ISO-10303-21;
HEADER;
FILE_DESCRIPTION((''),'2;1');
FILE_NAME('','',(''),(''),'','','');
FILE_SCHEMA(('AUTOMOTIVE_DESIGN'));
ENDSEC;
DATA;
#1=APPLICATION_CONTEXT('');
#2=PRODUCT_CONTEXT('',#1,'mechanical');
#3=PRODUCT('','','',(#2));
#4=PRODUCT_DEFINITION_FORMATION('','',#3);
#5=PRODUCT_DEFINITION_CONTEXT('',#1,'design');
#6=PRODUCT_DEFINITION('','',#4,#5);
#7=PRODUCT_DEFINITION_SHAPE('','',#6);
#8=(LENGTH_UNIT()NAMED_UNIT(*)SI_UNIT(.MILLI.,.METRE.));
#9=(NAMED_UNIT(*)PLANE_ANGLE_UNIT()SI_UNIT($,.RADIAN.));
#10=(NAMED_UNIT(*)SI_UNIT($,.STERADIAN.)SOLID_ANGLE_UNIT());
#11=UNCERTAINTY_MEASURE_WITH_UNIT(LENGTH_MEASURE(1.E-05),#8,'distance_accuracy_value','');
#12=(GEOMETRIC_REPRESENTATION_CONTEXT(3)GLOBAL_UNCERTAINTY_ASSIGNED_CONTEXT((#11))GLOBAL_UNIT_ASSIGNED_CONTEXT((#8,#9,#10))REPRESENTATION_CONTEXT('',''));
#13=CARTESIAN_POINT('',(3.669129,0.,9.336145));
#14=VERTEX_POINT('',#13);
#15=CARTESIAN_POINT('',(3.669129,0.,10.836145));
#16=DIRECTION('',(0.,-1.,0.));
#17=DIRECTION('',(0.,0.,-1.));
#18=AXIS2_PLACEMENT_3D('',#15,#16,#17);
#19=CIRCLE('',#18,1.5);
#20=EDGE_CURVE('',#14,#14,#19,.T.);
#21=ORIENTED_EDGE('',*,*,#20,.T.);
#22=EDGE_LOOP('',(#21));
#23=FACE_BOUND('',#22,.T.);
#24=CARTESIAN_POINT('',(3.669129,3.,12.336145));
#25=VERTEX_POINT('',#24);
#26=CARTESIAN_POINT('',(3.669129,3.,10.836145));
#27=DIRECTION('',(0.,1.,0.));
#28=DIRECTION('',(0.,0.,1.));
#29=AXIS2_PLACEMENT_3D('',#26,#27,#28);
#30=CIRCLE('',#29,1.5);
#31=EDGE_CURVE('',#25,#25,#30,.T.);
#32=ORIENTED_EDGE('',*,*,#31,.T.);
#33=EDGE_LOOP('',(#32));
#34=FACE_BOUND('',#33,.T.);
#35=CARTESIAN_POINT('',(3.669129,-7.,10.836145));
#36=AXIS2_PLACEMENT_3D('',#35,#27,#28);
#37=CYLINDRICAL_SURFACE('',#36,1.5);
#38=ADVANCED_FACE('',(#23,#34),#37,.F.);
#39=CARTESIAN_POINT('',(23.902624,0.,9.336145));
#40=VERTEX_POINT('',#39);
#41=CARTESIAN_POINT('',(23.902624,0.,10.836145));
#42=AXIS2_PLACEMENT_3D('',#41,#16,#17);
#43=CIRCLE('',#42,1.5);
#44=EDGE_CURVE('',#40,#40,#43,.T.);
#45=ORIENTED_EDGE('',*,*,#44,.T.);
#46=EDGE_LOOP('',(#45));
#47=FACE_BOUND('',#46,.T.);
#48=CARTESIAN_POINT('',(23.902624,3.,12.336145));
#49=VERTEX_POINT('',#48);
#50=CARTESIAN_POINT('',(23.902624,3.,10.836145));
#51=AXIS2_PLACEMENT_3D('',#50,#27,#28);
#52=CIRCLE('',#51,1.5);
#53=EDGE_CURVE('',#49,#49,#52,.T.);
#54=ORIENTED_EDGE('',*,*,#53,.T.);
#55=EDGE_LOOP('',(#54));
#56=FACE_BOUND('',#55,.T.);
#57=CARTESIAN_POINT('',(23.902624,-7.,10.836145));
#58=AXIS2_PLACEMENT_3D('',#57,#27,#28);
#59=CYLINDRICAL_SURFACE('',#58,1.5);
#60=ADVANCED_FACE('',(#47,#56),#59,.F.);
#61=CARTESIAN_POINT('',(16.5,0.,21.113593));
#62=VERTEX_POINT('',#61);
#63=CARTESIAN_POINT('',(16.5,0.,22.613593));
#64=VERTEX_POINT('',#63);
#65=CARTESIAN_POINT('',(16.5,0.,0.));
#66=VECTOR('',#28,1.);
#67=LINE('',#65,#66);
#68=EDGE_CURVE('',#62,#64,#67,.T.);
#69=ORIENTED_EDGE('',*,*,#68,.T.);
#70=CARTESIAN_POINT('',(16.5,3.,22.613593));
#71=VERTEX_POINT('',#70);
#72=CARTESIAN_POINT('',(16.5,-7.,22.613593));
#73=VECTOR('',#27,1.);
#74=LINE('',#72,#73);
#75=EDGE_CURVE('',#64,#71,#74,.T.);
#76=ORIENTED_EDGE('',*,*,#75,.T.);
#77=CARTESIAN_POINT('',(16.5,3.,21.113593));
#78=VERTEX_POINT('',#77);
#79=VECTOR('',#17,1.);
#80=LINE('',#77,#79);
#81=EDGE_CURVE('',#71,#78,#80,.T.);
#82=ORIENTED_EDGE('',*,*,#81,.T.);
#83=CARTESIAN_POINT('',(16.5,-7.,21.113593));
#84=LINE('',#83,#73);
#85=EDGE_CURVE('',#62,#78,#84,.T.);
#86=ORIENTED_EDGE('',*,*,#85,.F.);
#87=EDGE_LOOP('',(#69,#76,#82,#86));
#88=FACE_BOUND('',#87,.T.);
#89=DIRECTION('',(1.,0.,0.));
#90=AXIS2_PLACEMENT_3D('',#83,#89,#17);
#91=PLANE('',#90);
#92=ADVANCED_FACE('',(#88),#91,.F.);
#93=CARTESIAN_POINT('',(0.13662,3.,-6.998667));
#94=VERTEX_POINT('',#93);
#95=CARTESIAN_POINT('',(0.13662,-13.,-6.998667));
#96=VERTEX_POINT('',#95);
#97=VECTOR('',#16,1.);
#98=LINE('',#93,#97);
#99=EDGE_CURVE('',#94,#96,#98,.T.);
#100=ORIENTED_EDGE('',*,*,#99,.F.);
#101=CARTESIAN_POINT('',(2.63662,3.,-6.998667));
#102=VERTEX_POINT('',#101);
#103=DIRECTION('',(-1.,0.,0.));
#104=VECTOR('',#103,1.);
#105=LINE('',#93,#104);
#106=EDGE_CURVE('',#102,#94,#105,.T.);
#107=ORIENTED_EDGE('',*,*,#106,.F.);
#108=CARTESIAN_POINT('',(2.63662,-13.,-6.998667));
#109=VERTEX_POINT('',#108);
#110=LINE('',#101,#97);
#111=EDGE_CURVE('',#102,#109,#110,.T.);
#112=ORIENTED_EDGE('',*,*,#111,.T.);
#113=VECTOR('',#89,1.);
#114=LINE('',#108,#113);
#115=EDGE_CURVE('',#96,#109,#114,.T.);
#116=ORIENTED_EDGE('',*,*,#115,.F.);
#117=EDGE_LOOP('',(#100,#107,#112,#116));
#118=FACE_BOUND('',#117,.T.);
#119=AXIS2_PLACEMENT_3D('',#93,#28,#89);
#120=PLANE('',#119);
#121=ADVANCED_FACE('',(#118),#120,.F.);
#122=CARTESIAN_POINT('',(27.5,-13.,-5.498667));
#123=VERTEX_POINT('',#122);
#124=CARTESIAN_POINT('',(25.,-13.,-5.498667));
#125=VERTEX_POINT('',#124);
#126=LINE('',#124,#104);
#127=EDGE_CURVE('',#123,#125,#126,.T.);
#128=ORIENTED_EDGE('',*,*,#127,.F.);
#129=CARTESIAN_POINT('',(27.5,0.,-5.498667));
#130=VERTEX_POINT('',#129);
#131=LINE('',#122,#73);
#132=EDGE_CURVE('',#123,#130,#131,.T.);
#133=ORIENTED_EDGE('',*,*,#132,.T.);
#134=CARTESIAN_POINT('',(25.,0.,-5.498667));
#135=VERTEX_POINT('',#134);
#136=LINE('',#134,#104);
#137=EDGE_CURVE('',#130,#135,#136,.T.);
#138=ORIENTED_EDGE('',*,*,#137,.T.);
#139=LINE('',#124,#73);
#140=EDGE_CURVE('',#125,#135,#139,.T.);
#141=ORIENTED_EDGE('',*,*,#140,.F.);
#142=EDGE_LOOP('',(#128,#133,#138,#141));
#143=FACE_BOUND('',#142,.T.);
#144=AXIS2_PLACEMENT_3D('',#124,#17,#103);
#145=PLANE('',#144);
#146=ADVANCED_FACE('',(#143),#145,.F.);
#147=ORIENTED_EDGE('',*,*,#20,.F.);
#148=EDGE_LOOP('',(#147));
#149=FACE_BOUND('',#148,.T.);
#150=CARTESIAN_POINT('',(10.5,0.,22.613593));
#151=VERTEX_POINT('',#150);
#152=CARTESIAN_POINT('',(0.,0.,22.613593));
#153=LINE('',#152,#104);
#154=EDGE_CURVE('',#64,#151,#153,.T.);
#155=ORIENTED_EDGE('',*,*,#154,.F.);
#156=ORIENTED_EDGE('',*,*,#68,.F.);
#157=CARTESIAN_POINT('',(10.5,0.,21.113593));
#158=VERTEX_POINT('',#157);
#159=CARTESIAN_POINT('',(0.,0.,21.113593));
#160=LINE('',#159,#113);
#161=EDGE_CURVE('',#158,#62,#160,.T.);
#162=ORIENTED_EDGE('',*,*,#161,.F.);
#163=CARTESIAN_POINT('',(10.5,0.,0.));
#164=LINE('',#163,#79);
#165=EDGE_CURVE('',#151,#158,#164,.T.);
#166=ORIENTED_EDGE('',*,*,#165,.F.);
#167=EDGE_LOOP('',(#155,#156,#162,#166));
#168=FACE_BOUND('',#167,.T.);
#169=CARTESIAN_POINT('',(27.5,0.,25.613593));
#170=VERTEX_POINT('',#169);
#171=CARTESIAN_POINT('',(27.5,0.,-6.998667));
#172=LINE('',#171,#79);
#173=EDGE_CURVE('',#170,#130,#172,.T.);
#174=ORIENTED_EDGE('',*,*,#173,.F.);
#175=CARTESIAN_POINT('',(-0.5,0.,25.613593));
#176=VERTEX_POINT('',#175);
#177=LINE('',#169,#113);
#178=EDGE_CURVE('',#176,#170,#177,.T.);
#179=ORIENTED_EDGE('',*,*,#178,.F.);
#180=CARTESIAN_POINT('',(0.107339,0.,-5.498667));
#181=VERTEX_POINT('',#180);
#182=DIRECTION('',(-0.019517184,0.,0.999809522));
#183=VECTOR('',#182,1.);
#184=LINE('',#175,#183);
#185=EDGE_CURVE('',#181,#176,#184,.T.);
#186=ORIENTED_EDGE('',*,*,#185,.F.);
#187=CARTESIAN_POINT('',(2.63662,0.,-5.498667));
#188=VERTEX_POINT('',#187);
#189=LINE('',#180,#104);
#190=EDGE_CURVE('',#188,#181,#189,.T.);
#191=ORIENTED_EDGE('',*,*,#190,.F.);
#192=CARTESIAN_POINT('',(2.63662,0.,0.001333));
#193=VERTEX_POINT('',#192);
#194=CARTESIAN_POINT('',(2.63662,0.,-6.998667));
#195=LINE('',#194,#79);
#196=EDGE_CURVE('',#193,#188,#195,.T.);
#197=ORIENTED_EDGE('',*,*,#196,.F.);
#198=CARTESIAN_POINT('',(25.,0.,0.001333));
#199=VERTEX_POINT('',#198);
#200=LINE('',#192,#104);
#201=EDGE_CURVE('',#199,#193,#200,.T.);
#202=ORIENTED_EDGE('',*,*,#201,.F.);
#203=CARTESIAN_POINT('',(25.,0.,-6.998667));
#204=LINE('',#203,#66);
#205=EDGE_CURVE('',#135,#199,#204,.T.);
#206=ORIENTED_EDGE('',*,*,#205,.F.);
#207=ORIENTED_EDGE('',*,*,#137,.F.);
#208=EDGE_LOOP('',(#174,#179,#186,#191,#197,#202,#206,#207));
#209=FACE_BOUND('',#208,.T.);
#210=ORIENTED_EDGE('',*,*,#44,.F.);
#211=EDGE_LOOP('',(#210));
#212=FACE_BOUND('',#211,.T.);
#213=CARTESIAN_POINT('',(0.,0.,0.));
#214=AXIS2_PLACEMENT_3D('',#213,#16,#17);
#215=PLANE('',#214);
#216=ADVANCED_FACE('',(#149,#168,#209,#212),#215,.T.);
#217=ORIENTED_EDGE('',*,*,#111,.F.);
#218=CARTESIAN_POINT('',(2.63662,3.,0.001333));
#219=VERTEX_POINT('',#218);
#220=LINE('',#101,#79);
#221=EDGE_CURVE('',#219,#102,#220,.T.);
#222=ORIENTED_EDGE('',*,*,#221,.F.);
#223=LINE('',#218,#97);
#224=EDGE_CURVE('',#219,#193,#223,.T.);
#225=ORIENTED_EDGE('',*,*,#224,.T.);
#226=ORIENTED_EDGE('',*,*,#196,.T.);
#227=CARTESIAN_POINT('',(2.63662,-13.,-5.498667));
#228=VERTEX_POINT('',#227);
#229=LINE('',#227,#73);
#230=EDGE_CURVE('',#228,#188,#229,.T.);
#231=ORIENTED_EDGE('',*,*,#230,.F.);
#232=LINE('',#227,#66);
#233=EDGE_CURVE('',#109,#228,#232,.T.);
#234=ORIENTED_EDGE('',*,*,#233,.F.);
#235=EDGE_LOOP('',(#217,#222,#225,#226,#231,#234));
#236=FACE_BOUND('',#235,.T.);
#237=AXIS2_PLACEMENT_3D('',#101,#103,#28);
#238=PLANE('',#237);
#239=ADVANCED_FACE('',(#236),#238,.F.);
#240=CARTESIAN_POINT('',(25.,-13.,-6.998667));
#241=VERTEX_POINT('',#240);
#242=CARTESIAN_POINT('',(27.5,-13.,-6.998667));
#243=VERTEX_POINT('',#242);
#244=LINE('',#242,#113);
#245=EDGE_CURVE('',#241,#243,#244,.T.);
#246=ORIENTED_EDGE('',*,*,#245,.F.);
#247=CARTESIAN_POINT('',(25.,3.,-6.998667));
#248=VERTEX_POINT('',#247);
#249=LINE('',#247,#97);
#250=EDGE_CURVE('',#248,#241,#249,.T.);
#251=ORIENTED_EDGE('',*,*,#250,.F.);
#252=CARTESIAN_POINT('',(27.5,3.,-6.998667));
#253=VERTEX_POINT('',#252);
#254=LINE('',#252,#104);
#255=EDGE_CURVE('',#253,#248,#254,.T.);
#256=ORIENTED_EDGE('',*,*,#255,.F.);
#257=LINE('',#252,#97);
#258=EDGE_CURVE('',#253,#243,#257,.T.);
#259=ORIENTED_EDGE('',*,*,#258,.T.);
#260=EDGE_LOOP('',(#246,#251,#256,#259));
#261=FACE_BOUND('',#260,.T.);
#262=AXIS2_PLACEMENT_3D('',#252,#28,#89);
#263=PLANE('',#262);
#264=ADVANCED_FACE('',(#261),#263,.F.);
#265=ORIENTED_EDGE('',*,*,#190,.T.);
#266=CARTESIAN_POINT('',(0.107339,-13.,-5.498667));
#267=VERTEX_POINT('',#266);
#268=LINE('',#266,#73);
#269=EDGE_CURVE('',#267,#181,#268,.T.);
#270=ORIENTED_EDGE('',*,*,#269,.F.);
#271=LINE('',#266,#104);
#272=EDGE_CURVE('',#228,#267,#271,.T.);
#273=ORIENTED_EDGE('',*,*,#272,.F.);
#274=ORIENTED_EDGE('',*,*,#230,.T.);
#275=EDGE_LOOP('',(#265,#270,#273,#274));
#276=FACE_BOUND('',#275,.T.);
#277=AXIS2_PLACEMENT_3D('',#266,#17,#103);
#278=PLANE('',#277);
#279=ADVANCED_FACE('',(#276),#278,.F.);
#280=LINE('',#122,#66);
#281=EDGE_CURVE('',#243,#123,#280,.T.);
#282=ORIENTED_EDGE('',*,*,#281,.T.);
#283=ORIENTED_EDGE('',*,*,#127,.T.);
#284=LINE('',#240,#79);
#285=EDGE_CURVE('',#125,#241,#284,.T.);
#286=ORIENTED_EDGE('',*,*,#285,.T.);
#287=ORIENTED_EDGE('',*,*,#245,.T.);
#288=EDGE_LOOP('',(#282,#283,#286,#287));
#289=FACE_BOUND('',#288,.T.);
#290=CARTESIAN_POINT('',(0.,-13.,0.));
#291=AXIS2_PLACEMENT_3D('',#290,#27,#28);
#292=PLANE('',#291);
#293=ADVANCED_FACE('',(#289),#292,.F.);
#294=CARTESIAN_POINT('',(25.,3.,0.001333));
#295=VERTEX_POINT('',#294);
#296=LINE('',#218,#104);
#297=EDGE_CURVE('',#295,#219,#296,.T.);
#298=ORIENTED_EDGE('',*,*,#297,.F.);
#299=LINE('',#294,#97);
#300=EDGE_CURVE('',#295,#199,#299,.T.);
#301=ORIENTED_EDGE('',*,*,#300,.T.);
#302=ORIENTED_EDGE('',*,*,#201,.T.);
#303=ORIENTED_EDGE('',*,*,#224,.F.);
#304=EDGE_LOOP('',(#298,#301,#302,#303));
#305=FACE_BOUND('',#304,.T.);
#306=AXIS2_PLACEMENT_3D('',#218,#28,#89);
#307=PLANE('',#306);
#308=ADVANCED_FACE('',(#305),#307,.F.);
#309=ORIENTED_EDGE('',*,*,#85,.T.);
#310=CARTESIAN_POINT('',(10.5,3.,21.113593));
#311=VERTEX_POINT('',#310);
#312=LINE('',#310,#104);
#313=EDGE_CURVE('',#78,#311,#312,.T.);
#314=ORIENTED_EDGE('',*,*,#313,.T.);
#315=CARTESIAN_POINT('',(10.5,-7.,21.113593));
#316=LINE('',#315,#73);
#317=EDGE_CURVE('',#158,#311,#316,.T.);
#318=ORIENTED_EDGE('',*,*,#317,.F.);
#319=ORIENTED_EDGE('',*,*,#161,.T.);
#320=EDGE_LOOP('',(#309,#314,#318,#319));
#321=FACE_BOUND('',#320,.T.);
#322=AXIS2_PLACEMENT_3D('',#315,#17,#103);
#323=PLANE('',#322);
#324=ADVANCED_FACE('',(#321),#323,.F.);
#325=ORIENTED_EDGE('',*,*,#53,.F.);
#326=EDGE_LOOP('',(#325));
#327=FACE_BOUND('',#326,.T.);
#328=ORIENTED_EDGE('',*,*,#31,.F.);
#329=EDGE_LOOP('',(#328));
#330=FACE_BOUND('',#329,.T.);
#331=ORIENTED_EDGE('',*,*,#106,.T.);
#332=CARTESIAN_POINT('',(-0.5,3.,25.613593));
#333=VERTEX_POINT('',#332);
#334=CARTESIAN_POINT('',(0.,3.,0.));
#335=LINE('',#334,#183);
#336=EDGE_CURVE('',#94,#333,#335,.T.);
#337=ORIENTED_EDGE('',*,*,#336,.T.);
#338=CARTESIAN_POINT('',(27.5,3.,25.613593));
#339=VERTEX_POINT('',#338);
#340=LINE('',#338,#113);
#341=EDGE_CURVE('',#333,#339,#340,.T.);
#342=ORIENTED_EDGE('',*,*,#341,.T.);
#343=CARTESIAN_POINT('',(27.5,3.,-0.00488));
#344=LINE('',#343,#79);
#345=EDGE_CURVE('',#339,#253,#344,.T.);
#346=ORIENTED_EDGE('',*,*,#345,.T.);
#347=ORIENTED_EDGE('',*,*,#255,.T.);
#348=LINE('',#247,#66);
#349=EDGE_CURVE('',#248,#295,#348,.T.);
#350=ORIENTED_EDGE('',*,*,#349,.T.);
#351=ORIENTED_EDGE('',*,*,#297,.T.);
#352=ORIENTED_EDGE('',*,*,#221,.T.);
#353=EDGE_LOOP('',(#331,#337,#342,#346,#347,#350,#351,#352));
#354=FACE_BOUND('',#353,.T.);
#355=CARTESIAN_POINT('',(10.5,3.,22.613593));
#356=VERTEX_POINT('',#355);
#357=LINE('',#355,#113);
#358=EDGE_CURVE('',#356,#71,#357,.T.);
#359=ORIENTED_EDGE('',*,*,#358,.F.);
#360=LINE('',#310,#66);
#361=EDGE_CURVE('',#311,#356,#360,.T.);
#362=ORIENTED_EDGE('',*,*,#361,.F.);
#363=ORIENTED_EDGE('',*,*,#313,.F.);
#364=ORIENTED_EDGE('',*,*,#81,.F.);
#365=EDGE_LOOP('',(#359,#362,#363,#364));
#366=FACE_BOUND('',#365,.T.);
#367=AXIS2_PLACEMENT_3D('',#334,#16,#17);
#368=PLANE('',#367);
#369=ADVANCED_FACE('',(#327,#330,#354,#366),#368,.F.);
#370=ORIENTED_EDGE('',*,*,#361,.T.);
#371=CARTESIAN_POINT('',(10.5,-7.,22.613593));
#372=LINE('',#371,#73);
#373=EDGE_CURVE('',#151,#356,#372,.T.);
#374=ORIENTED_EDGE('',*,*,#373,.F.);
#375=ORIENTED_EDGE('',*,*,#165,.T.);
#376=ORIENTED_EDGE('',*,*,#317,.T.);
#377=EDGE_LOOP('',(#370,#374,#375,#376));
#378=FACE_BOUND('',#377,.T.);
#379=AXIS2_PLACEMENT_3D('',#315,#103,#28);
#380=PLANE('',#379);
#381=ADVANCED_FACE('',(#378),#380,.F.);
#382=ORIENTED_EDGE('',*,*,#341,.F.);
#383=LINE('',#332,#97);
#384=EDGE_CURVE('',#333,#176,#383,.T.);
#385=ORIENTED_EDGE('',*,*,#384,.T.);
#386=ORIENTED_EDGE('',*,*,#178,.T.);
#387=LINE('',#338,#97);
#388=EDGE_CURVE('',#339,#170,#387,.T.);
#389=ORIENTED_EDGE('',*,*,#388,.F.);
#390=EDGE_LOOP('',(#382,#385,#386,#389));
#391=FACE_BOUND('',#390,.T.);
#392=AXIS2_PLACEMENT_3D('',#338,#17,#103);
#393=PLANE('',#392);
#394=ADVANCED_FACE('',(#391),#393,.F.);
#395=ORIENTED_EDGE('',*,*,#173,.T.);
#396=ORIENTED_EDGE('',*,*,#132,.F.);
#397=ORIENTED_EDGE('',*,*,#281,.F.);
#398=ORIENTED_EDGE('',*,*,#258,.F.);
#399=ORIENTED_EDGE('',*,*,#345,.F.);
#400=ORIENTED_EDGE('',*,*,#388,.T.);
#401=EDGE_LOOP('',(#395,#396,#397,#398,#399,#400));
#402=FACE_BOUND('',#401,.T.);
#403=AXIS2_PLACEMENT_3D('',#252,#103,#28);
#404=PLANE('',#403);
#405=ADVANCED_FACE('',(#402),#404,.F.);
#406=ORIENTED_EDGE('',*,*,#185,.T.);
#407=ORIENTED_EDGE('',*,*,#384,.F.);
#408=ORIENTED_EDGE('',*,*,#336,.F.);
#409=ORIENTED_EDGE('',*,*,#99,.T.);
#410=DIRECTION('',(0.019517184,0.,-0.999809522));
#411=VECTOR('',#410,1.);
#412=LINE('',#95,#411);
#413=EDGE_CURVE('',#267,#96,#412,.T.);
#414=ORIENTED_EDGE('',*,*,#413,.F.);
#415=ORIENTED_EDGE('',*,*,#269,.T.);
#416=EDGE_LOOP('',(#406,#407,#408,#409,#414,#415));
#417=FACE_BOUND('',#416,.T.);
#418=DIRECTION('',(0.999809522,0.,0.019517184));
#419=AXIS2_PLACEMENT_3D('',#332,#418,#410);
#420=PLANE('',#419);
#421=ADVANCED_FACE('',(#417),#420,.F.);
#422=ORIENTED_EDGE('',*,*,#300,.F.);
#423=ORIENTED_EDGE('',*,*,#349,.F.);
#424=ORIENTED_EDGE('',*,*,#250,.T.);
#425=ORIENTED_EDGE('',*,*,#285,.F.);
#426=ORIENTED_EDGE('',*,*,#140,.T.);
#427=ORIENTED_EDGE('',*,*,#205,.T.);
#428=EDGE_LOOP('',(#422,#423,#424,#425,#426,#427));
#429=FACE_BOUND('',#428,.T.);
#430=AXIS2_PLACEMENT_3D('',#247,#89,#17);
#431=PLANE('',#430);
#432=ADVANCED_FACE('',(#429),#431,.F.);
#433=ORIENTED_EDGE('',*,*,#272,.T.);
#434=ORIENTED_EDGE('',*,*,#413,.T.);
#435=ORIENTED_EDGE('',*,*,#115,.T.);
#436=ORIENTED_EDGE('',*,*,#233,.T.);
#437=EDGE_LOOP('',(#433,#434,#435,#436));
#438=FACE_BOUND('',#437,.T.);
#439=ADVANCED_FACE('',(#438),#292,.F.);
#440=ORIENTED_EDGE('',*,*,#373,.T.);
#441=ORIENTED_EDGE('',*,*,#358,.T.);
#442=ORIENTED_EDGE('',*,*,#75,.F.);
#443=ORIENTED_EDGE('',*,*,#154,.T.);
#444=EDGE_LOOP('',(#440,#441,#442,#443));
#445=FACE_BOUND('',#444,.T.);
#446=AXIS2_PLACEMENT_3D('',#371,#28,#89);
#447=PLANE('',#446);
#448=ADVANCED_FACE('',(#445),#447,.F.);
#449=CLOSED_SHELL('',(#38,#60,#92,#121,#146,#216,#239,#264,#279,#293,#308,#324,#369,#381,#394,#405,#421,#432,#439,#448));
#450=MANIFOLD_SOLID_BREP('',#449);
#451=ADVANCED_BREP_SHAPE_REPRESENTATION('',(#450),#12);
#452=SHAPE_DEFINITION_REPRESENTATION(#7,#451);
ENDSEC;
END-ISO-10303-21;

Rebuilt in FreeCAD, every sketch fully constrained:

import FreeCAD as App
import Part
import Sketcher
from FreeCAD import Vector
Q = App.Units.Quantity


def add_polygon(sketch, points):
    """Adds a closed chain of lines whose ends are joined by coincident constraints."""
    first, n = sketch.GeometryCount, len(points)
    for a, b in zip(points, points[1:] + points[:1]):
        sketch.addGeometry(Part.LineSegment(App.Vector(*a, 0), App.Vector(*b, 0)), False)
    for i in range(n):
        sketch.addConstraint(Sketcher.Constraint("Coincident", first + i, 2, first + (i + 1) % n, 1))

doc = App.newDocument("Part")
body = doc.addObject("PartDesign::Body", "Body")

sketch1 = doc.addObject("Sketcher::SketchObject", "Sketch")
body.addObject(sketch1)
sketch1.AttachmentSupport = (doc.XZ_Plane, [""])
sketch1.MapMode = "FlatFace"
add_polygon(sketch1, [(25, 0), (2.6, 0), (2.6, -7), (0.1, -7), (0, 0), (-0.5, 25.6), (27.5, 25.6), (27.5, -7), (25, -7)])
sketch1.addConstraint([
    Sketcher.Constraint("Horizontal", 0),
    Sketcher.Constraint("Vertical", 1),
    Sketcher.Constraint("Horizontal", 2),
    Sketcher.Constraint("Horizontal", 5),
    Sketcher.Constraint("Vertical", 6),
    Sketcher.Constraint("Horizontal", 7),
    Sketcher.Constraint("Vertical", 8),
    Sketcher.Constraint("Coincident", 3, 2, -1, 1),
    Sketcher.Constraint("Parallel", 3, 4),
    Sketcher.Constraint("Horizontal", 2, 2, 6, 2),
    Sketcher.Constraint("Equal", 2, 7),
    Sketcher.Constraint("DistanceX", 5, 1, 5, 2, Q("28 mm")),
    Sketcher.Constraint("DistanceY", 1, 2, 1, 1, Q("7 mm")),
    Sketcher.Constraint("Distance", 3, Q("7 mm")),
    Sketcher.Constraint("DistanceX", 2, 2, 2, 1, Q("2.5 mm")),
    Sketcher.Constraint("DistanceX", -1, 1, 7, 2, Q("25 mm")),
    Sketcher.Constraint("DistanceY", 6, 2, 6, 1, Q("32.61226 mm")),
])
pad1 = doc.addObject("PartDesign::Pad", "Pad")
body.addObject(pad1)
pad1.Profile = sketch1
pad1.Length = 3
pad1.Reversed = True

sketch2 = doc.addObject("Sketcher::SketchObject", "Sketch001")
body.addObject(sketch2)
sketch2.AttachmentSupport = (doc.XZ_Plane, [""])
sketch2.MapMode = "FlatFace"
add_polygon(sketch2, [(0.1, -7), (2.6, -7), (2.6, -5.5), (0.1, -5.5)])
sketch2.addConstraint([
    Sketcher.Constraint("Horizontal", 0),
    Sketcher.Constraint("Vertical", 1),
    Sketcher.Constraint("Horizontal", 2),
    Sketcher.Constraint("DistanceX", 0, 1, 0, 2, Q("2.5 mm")),
    Sketcher.Constraint("DistanceY", 1, 1, 1, 2, Q("1.5 mm")),
    Sketcher.Constraint("DistanceX", 2, 2, 2, 1, Q("2.529281 mm")),
    Sketcher.Constraint("DistanceX", -1, 1, 0, 2, Q("2.63662 mm")),
    Sketcher.Constraint("DistanceY", 0, 2, -1, 1, Q("6.998667 mm")),
])
pad2 = doc.addObject("PartDesign::Pad", "Pad001")
body.addObject(pad2)
pad2.Profile = sketch2
pad2.Length = 13

sketch3 = doc.addObject("Sketcher::SketchObject", "Sketch002")
body.addObject(sketch3)
sketch3.AttachmentSupport = (doc.XZ_Plane, [""])
sketch3.MapMode = "FlatFace"
add_polygon(sketch3, [(27.5, -7), (27.5, -5.5), (25, -5.5), (25, -7)])
sketch3.addConstraint([
    Sketcher.Constraint("Vertical", 0),
    Sketcher.Constraint("Horizontal", 1),
    Sketcher.Constraint("Vertical", 2),
    Sketcher.Constraint("Horizontal", 3),
    Sketcher.Constraint("DistanceX", 1, 2, 1, 1, Q("2.5 mm")),
    Sketcher.Constraint("DistanceY", 0, 1, 0, 2, Q("1.5 mm")),
    Sketcher.Constraint("DistanceX", -1, 1, 1, 2, Q("25 mm")),
    Sketcher.Constraint("DistanceY", 0, 2, -1, 1, Q("5.498667 mm")),
])
pad3 = doc.addObject("PartDesign::Pad", "Pad002")
body.addObject(pad3)
pad3.Profile = sketch3
pad3.Length = 13

sketch4 = doc.addObject("Sketcher::SketchObject", "Sketch003")
body.addObject(sketch4)
sketch4.AttachmentSupport = (doc.XZ_Plane, [""])
sketch4.MapMode = "FlatFace"
sketch4.AttachmentOffset = App.Placement(Vector(0, 0, -3), App.Rotation())
sketch4.addGeometry([
    Part.Circle(Vector(3.7, 10.8, 0), Vector(0, 0, 1), 1.5),
    Part.Circle(Vector(23.9, 10.8, 0), Vector(0, 0, 1), 1.5),
], False)
sketch4.addConstraint([
    Sketcher.Constraint("Equal", 0, 1),
    Sketcher.Constraint("Horizontal", 0, 3, 1, 3),
    Sketcher.Constraint("Diameter", 0, Q("3 mm")),
    Sketcher.Constraint("DistanceX", -1, 1, 0, 3, Q("3.669129 mm")),
    Sketcher.Constraint("DistanceY", -1, 1, 0, 3, Q("10.836145 mm")),
    Sketcher.Constraint("DistanceX", -1, 1, 1, 3, Q("23.902624 mm")),
])
pocket1 = doc.addObject("PartDesign::Pocket", "Pocket")
body.addObject(pocket1)
pocket1.Profile = sketch4
pocket1.Length = 10
pocket1.Reversed = True

sketch5 = doc.addObject("Sketcher::SketchObject", "Sketch004")
body.addObject(sketch5)
sketch5.AttachmentSupport = (doc.XZ_Plane, [""])
sketch5.MapMode = "FlatFace"
sketch5.AttachmentOffset = App.Placement(Vector(0, 0, -3), App.Rotation())
add_polygon(sketch5, [(10.5, 21.1), (10.5, 22.6), (16.5, 22.6), (16.5, 21.1)])
sketch5.addConstraint([
    Sketcher.Constraint("Vertical", 0),
    Sketcher.Constraint("Horizontal", 1),
    Sketcher.Constraint("Vertical", 2),
    Sketcher.Constraint("Horizontal", 3),
    Sketcher.Constraint("DistanceX", 1, 1, 1, 2, Q("6 mm")),
    Sketcher.Constraint("DistanceY", 0, 1, 0, 2, Q("1.5 mm")),
    Sketcher.Constraint("DistanceX", -1, 1, 0, 2, Q("10.5 mm")),
    Sketcher.Constraint("DistanceY", -1, 1, 0, 2, Q("22.613593 mm")),
])
pocket2 = doc.addObject("PartDesign::Pocket", "Pocket001")
body.addObject(pocket2)
pocket2.Profile = sketch5
pocket2.Length = 10
pocket2.Reversed = True

doc.recompute()
